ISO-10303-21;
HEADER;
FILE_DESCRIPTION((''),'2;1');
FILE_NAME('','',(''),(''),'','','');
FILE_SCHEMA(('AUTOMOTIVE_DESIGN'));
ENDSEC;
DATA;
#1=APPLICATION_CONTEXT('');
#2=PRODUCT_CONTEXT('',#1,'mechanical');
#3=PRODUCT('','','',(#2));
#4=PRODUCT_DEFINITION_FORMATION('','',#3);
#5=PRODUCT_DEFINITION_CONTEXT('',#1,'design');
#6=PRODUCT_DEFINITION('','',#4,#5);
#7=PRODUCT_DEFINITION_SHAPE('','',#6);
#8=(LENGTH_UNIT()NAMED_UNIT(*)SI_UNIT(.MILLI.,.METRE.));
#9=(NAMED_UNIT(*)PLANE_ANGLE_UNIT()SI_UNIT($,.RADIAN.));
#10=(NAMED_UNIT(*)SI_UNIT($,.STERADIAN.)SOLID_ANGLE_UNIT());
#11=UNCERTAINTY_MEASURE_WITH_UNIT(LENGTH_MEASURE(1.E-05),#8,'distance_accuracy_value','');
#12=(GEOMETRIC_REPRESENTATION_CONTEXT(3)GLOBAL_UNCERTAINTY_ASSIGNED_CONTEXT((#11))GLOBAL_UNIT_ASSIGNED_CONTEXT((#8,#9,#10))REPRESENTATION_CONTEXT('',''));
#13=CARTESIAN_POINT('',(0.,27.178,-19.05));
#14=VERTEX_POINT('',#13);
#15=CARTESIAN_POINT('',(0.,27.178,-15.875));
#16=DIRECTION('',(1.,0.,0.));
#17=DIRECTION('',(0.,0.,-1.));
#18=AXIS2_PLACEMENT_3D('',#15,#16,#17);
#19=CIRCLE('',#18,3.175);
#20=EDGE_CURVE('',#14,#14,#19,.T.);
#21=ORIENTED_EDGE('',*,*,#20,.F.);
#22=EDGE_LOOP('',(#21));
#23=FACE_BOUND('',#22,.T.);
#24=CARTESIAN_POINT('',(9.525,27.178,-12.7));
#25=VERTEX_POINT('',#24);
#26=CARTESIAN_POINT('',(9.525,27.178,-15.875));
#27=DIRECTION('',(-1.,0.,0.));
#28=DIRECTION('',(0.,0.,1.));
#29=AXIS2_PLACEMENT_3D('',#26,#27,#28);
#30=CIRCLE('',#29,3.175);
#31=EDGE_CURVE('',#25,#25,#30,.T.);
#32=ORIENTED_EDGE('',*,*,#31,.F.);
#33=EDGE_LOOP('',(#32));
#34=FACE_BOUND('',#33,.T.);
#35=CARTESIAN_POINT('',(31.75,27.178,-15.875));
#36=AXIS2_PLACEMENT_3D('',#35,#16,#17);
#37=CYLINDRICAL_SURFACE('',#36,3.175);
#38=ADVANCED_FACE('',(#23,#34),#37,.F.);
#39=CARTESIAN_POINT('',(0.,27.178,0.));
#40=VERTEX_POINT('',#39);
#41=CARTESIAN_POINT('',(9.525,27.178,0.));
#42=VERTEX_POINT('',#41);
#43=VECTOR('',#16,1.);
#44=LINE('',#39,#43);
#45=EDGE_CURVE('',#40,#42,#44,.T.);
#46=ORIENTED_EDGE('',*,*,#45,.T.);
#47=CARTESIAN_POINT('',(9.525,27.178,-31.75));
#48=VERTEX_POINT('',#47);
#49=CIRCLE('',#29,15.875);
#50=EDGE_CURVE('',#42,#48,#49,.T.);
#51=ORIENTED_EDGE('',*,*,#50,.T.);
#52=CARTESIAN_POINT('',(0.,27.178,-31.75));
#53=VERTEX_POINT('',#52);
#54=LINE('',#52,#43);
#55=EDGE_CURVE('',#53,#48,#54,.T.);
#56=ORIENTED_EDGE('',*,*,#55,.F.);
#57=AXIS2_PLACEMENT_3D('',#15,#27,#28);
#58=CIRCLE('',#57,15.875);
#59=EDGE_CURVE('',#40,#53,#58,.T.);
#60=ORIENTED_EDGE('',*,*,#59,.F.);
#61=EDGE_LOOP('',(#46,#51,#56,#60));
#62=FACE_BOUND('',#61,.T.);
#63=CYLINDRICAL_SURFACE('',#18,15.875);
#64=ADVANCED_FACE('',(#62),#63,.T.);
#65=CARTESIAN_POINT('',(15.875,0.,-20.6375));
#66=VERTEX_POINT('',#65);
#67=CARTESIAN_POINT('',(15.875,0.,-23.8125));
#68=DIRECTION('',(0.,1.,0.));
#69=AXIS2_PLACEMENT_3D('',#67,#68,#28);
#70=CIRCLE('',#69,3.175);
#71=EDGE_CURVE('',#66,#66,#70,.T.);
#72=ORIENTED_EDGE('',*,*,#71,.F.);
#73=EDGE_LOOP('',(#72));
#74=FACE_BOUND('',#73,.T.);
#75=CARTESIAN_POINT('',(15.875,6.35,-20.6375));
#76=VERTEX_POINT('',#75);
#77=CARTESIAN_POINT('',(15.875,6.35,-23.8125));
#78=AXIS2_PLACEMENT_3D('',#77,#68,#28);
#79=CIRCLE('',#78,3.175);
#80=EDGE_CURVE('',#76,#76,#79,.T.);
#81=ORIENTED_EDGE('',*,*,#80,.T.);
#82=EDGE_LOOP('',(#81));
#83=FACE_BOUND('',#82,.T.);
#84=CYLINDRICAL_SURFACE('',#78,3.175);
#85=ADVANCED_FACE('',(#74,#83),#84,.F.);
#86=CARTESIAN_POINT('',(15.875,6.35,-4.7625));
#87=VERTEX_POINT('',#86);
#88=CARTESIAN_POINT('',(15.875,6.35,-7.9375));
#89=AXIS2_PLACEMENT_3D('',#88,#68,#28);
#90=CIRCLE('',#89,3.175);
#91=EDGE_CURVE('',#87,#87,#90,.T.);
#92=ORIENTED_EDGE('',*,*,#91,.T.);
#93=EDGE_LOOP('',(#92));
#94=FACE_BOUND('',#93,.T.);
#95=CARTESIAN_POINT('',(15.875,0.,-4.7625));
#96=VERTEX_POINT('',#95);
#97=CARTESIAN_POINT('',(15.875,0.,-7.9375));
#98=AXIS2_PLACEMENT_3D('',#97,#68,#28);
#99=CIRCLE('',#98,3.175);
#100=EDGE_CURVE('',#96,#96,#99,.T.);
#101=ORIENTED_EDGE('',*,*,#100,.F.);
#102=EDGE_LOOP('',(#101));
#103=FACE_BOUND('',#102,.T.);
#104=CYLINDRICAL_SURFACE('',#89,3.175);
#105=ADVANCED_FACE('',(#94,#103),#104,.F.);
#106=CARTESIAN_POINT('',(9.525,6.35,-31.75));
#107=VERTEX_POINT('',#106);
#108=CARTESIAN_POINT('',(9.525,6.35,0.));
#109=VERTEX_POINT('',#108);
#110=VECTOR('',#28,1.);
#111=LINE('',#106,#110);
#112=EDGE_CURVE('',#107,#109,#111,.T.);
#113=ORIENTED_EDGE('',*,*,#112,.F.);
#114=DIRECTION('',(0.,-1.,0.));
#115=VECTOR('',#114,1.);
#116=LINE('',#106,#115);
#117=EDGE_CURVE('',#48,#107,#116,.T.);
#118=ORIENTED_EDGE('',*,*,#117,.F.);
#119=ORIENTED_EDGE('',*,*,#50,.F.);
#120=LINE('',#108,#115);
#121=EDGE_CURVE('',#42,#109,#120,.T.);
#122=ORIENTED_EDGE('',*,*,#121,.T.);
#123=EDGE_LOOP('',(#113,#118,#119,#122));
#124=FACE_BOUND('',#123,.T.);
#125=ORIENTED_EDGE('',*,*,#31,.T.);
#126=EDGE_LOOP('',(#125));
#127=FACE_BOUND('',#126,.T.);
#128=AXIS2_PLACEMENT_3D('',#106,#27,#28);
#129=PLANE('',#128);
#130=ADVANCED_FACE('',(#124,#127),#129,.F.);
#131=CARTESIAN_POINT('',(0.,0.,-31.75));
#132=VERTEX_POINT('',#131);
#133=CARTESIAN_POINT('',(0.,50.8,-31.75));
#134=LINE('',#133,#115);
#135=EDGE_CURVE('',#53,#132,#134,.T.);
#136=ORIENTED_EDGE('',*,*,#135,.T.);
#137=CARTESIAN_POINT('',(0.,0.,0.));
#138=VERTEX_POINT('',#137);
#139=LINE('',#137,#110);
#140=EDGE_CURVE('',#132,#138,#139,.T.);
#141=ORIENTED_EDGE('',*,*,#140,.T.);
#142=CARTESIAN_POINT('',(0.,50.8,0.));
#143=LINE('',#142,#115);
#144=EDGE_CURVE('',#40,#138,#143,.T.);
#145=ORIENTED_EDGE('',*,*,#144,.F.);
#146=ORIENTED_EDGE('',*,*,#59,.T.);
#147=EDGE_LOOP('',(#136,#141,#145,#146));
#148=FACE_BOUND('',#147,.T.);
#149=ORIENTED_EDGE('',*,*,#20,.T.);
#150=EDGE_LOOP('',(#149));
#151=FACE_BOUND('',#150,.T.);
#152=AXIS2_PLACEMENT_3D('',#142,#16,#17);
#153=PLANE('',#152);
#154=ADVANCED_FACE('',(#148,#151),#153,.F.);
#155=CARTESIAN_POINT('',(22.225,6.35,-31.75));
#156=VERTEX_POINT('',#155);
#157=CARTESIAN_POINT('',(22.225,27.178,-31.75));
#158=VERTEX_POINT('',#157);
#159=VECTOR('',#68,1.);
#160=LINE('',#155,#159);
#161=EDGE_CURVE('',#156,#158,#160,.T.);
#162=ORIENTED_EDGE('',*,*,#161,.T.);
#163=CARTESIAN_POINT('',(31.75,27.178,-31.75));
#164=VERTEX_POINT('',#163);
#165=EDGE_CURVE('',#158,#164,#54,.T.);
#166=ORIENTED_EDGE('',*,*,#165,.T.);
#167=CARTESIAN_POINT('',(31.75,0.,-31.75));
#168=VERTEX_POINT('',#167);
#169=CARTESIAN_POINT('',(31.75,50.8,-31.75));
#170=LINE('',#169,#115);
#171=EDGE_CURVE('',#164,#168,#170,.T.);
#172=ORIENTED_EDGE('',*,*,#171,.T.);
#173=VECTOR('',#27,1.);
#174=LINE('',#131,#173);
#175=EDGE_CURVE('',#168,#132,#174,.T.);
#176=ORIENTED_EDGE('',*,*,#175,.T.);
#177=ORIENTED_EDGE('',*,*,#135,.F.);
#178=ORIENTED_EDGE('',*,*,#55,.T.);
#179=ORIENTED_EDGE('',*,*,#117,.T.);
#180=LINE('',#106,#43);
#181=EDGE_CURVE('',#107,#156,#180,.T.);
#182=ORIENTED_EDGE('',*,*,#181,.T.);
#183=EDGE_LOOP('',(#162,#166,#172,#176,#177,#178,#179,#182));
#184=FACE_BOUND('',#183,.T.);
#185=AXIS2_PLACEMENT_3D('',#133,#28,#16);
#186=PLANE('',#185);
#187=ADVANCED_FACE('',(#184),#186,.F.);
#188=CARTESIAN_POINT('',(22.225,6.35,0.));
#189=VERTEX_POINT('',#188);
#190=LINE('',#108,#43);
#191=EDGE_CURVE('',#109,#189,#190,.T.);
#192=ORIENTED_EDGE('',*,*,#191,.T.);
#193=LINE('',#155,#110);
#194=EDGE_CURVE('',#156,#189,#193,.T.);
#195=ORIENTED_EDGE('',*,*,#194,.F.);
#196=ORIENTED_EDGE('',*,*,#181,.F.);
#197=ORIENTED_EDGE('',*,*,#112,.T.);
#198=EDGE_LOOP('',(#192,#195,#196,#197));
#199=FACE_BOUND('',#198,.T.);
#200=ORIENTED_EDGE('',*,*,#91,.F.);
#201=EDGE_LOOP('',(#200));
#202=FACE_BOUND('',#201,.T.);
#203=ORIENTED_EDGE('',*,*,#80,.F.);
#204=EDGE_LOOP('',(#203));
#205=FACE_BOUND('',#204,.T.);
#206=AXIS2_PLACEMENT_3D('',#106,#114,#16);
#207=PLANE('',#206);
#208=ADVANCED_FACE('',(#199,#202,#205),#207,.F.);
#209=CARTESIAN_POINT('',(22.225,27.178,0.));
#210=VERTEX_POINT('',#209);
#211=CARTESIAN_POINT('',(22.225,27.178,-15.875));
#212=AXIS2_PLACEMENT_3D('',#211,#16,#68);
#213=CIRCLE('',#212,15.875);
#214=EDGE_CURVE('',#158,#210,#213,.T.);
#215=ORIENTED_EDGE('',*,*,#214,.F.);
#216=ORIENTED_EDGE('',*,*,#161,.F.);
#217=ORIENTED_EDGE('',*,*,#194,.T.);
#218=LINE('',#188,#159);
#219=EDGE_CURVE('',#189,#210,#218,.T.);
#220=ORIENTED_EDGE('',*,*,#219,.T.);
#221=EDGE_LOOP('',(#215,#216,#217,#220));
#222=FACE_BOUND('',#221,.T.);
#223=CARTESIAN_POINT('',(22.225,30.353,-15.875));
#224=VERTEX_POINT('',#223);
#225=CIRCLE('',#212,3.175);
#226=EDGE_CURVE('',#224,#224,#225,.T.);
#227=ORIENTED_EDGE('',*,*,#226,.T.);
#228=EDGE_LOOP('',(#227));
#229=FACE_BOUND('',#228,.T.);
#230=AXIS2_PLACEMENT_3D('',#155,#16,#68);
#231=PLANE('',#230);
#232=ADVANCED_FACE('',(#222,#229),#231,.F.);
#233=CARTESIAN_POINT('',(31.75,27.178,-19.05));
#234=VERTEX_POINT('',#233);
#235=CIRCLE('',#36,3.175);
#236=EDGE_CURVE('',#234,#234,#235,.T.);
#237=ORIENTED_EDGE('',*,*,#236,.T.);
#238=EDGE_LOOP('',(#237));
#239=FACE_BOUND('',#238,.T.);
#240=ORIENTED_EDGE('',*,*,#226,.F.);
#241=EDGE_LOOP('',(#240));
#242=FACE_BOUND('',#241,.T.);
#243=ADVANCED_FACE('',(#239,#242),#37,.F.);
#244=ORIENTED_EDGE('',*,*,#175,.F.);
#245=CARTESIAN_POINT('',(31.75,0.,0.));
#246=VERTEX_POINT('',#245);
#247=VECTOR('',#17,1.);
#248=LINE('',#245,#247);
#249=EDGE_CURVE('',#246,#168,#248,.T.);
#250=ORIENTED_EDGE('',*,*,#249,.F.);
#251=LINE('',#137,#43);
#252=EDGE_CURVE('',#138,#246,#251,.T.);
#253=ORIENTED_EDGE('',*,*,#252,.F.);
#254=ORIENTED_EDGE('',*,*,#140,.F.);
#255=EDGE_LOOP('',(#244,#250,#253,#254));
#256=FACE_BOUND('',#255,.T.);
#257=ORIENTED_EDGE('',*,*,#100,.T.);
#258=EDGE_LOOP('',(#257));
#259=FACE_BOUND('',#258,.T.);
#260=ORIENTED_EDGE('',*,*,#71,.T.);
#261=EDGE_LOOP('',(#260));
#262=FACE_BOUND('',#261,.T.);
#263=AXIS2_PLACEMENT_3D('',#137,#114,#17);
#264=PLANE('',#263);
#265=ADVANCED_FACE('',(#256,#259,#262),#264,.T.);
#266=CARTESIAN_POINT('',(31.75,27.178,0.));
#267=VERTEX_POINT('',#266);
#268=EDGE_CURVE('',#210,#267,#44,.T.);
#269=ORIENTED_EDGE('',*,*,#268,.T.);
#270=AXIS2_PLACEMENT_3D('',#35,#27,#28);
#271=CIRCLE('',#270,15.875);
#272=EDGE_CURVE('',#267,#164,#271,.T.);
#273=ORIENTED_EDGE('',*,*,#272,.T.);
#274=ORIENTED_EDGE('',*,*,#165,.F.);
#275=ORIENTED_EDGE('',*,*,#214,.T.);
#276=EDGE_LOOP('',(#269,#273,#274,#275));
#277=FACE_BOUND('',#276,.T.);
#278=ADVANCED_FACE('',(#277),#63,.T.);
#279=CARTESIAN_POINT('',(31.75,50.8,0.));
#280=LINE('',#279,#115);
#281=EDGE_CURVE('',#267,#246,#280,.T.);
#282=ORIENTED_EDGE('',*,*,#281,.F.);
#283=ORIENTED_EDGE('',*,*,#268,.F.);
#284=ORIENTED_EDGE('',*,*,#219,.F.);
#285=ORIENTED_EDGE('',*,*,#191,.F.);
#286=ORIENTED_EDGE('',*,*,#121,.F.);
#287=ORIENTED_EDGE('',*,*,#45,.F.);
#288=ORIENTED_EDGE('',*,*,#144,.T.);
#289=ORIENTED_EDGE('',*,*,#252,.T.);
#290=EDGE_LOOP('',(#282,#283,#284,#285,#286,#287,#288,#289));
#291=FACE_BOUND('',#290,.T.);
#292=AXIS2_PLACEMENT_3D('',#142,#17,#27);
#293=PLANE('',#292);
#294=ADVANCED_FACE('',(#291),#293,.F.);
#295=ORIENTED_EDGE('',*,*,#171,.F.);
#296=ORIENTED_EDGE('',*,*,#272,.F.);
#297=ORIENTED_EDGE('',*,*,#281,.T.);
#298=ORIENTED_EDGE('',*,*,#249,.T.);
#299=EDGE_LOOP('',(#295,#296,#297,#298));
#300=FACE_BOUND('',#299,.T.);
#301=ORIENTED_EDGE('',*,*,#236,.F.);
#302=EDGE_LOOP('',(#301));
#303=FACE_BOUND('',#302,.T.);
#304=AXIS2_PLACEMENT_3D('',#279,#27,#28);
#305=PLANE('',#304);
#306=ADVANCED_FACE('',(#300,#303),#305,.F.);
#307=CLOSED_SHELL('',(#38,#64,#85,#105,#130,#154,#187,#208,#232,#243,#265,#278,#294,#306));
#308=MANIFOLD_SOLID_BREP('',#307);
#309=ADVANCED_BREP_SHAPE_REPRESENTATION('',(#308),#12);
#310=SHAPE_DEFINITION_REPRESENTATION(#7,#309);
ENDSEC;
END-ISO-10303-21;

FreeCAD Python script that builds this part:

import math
import FreeCAD as App
import Part
import Sketcher

V = App.Vector
Q = App.Units.Quantity


def add_polygon(sketch, points):
    """Adds a closed chain of lines whose ends are joined by coincident constraints."""
    first, n = sketch.GeometryCount, len(points)
    for a, b in zip(points, points[1:] + points[:1]):
        sketch.addGeometry(Part.LineSegment(App.Vector(*a, 0), App.Vector(*b, 0)), False)
    for i in range(n):
        sketch.addConstraint(Sketcher.Constraint("Coincident", first + i, 2, first + (i + 1) % n, 1))

doc = App.newDocument("Part")
body = doc.addObject("PartDesign::Body", "Body")

sketch1 = body.newObject("Sketcher::SketchObject", "Sketch")
sketch1.AttachmentSupport = (doc.getObject("XZ_Plane"), [""])
sketch1.MapMode = "FlatFace"
add_polygon(sketch1, [(0, -31.75), (0, 0), (31.75, 0), (31.75, -31.75)])
sketch1.addConstraint(Sketcher.Constraint("Vertical", 0))
sketch1.addConstraint(Sketcher.Constraint("Horizontal", 1))
sketch1.addConstraint(Sketcher.Constraint("Vertical", 2))
sketch1.addConstraint(Sketcher.Constraint("Horizontal", 3))
sketch1.addConstraint(Sketcher.Constraint("Coincident", 0, 2, -1, 1))
sketch1.addConstraint(Sketcher.Constraint("Equal", 3, 0))
sketch1.addConstraint(Sketcher.Constraint("DistanceX", 1, 1, 1, 2, Q("1.25 in")))
pad1 = body.newObject("PartDesign::Pad", "Pad")
pad1.Profile = sketch1
pad1.Length = Q("2 in")
pad1.Reversed = True

sketch2 = body.newObject("Sketcher::SketchObject", "Sketch001")
sketch2.AttachmentSupport = (doc.getObject("YZ_Plane"), [""])
sketch2.MapMode = "FlatFace"
sketch2.AttachmentOffset = App.Placement(V(0, 0, 1.25 * 25.4), App.Rotation())
sketch2.addGeometry(Part.LineSegment(V(50.8, -31.75, 0), V(50.8, 0, 0)), False)
sketch2.addGeometry(Part.LineSegment(V(50.8, 0, 0), V(27.178, 0, 0)), False)
sketch2.addGeometry(Part.ArcOfCircle(Part.Circle(V(27.178, -15.875, 0), V(0, 0, 1), 15.875), math.radians(-90), math.radians(90)), False)
sketch2.addGeometry(Part.LineSegment(V(27.178, -31.75, 0), V(50.8, -31.75, 0)), False)
sketch2.addConstraint(Sketcher.Constraint("Coincident", 0, 2, 1, 1))
sketch2.addConstraint(Sketcher.Constraint("Tangent", 1, 2, 2, 2))
sketch2.addConstraint(Sketcher.Constraint("Tangent", 2, 1, 3, 1))
sketch2.addConstraint(Sketcher.Constraint("Coincident", 3, 2, 0, 1))
sketch2.addConstraint(Sketcher.Constraint("Vertical", 0))
sketch2.addConstraint(Sketcher.Constraint("Horizontal", 1))
sketch2.addConstraint(Sketcher.Constraint("Horizontal", 3))
sketch2.addConstraint(Sketcher.Constraint("PointOnObject", 0, 2, -1))
sketch2.addConstraint(Sketcher.Constraint("DistanceX", -1, 1, 0, 2, Q("2 in")))
sketch2.addConstraint(Sketcher.Constraint("Radius", 2, Q("0.625 in")))
sketch2.addConstraint(Sketcher.Constraint("DistanceX", 1, 2, 1, 1, Q("0.93 in")))
pocket1 = body.newObject("PartDesign::Pocket", "Pocket")
pocket1.Profile = sketch2
pocket1.Type = "ThroughAll"

sketch3 = body.newObject("Sketcher::SketchObject", "Sketch002")
sketch3.AttachmentSupport = (doc.getObject("XY_Plane"), [""])
sketch3.MapMode = "FlatFace"
add_polygon(sketch3, [(9.525, 57.15), (9.525, 6.35), (22.225, 6.35), (22.225, 57.15)])
sketch3.addConstraint(Sketcher.Constraint("Vertical", 0))
sketch3.addConstraint(Sketcher.Constraint("Horizontal", 1))
sketch3.addConstraint(Sketcher.Constraint("Vertical", 2))
sketch3.addConstraint(Sketcher.Constraint("Horizontal", 3))
sketch3.addConstraint(Sketcher.Constraint("DistanceY", 0, 2, 0, 1, Q("2 in")))
sketch3.addConstraint(Sketcher.Constraint("DistanceX", 1, 1, 1, 2, Q("0.5 in")))
sketch3.addConstraint(Sketcher.Constraint("DistanceY", -1, 1, 0, 2, Q("0.25 in")))
sketch3.addConstraint(Sketcher.Constraint("DistanceX", -1, 1, 0, 2, Q("0.375 in")))
pocket2 = body.newObject("PartDesign::Pocket", "Pocket001")
pocket2.Profile = sketch3
pocket2.Type = "ThroughAll"

sketch4 = body.newObject("Sketcher::SketchObject", "Sketch003")
sketch4.AttachmentSupport = (doc.getObject("XZ_Plane"), [""])
sketch4.MapMode = "FlatFace"
sketch4.AttachmentOffset = App.Placement(V(0, 0, -0.25 * 25.4), App.Rotation())
sketch4.addGeometry(Part.Circle(V(15.875, -23.8125, 0), V(0, 0, 1), 3.175), False)
sketch4.addGeometry(Part.Circle(V(15.875, -7.9375, 0), V(0, 0, 1), 3.175), False)
sketch4.addConstraint(Sketcher.Constraint("Equal", 0, 1))
sketch4.addConstraint(Sketcher.Constraint("Vertical", 0, 3, 1, 3))
sketch4.addConstraint(Sketcher.Constraint("Diameter", 0, Q("0.25 in")))
sketch4.addConstraint(Sketcher.Constraint("DistanceX", -1, 1, 0, 3, Q("0.625 in")))
sketch4.addConstraint(Sketcher.Constraint("DistanceY", 0, 3, -1, 1, Q("0.9375 in")))
sketch4.addConstraint(Sketcher.Constraint("DistanceY", 1, 3, -1, 1, Q("0.3125 in")))
doc.recompute()
hole = body.newObject("PartDesign::Hole", "Hole")
hole.Profile = sketch4
hole.ThreadType = "None"
hole.Diameter = Q("0.25 in")
hole.DepthType = "ThroughAll"
hole.Reversed = True

sketch5 = body.newObject("Sketcher::SketchObject", "Sketch004")
sketch5.AttachmentSupport = (doc.getObject("YZ_Plane"), [""])
sketch5.MapMode = "FlatFace"
sketch5.AttachmentOffset = App.Placement(V(0, 0, 1.25 * 25.4), App.Rotation())
sketch5.addGeometry(Part.Circle(V(27.178, -15.875, 0), V(0, 0, 1), 3.175), False)
sketch5.addConstraint(Sketcher.Constraint("Diameter", 0, Q("0.25 in")))
sketch5.addConstraint(Sketcher.Constraint("DistanceX", -1, 1, 0, 3, Q("1.07 in")))
sketch5.addConstraint(Sketcher.Constraint("DistanceY", 0, 3, -1, 1, Q("0.625 in")))
doc.recompute()
hole2 = body.newObject("PartDesign::Hole", "Hole001")
hole2.Profile = sketch5
hole2.ThreadType = "None"
hole2.Diameter = Q("0.25 in")
hole2.DepthType = "ThroughAll"

doc.recompute()
